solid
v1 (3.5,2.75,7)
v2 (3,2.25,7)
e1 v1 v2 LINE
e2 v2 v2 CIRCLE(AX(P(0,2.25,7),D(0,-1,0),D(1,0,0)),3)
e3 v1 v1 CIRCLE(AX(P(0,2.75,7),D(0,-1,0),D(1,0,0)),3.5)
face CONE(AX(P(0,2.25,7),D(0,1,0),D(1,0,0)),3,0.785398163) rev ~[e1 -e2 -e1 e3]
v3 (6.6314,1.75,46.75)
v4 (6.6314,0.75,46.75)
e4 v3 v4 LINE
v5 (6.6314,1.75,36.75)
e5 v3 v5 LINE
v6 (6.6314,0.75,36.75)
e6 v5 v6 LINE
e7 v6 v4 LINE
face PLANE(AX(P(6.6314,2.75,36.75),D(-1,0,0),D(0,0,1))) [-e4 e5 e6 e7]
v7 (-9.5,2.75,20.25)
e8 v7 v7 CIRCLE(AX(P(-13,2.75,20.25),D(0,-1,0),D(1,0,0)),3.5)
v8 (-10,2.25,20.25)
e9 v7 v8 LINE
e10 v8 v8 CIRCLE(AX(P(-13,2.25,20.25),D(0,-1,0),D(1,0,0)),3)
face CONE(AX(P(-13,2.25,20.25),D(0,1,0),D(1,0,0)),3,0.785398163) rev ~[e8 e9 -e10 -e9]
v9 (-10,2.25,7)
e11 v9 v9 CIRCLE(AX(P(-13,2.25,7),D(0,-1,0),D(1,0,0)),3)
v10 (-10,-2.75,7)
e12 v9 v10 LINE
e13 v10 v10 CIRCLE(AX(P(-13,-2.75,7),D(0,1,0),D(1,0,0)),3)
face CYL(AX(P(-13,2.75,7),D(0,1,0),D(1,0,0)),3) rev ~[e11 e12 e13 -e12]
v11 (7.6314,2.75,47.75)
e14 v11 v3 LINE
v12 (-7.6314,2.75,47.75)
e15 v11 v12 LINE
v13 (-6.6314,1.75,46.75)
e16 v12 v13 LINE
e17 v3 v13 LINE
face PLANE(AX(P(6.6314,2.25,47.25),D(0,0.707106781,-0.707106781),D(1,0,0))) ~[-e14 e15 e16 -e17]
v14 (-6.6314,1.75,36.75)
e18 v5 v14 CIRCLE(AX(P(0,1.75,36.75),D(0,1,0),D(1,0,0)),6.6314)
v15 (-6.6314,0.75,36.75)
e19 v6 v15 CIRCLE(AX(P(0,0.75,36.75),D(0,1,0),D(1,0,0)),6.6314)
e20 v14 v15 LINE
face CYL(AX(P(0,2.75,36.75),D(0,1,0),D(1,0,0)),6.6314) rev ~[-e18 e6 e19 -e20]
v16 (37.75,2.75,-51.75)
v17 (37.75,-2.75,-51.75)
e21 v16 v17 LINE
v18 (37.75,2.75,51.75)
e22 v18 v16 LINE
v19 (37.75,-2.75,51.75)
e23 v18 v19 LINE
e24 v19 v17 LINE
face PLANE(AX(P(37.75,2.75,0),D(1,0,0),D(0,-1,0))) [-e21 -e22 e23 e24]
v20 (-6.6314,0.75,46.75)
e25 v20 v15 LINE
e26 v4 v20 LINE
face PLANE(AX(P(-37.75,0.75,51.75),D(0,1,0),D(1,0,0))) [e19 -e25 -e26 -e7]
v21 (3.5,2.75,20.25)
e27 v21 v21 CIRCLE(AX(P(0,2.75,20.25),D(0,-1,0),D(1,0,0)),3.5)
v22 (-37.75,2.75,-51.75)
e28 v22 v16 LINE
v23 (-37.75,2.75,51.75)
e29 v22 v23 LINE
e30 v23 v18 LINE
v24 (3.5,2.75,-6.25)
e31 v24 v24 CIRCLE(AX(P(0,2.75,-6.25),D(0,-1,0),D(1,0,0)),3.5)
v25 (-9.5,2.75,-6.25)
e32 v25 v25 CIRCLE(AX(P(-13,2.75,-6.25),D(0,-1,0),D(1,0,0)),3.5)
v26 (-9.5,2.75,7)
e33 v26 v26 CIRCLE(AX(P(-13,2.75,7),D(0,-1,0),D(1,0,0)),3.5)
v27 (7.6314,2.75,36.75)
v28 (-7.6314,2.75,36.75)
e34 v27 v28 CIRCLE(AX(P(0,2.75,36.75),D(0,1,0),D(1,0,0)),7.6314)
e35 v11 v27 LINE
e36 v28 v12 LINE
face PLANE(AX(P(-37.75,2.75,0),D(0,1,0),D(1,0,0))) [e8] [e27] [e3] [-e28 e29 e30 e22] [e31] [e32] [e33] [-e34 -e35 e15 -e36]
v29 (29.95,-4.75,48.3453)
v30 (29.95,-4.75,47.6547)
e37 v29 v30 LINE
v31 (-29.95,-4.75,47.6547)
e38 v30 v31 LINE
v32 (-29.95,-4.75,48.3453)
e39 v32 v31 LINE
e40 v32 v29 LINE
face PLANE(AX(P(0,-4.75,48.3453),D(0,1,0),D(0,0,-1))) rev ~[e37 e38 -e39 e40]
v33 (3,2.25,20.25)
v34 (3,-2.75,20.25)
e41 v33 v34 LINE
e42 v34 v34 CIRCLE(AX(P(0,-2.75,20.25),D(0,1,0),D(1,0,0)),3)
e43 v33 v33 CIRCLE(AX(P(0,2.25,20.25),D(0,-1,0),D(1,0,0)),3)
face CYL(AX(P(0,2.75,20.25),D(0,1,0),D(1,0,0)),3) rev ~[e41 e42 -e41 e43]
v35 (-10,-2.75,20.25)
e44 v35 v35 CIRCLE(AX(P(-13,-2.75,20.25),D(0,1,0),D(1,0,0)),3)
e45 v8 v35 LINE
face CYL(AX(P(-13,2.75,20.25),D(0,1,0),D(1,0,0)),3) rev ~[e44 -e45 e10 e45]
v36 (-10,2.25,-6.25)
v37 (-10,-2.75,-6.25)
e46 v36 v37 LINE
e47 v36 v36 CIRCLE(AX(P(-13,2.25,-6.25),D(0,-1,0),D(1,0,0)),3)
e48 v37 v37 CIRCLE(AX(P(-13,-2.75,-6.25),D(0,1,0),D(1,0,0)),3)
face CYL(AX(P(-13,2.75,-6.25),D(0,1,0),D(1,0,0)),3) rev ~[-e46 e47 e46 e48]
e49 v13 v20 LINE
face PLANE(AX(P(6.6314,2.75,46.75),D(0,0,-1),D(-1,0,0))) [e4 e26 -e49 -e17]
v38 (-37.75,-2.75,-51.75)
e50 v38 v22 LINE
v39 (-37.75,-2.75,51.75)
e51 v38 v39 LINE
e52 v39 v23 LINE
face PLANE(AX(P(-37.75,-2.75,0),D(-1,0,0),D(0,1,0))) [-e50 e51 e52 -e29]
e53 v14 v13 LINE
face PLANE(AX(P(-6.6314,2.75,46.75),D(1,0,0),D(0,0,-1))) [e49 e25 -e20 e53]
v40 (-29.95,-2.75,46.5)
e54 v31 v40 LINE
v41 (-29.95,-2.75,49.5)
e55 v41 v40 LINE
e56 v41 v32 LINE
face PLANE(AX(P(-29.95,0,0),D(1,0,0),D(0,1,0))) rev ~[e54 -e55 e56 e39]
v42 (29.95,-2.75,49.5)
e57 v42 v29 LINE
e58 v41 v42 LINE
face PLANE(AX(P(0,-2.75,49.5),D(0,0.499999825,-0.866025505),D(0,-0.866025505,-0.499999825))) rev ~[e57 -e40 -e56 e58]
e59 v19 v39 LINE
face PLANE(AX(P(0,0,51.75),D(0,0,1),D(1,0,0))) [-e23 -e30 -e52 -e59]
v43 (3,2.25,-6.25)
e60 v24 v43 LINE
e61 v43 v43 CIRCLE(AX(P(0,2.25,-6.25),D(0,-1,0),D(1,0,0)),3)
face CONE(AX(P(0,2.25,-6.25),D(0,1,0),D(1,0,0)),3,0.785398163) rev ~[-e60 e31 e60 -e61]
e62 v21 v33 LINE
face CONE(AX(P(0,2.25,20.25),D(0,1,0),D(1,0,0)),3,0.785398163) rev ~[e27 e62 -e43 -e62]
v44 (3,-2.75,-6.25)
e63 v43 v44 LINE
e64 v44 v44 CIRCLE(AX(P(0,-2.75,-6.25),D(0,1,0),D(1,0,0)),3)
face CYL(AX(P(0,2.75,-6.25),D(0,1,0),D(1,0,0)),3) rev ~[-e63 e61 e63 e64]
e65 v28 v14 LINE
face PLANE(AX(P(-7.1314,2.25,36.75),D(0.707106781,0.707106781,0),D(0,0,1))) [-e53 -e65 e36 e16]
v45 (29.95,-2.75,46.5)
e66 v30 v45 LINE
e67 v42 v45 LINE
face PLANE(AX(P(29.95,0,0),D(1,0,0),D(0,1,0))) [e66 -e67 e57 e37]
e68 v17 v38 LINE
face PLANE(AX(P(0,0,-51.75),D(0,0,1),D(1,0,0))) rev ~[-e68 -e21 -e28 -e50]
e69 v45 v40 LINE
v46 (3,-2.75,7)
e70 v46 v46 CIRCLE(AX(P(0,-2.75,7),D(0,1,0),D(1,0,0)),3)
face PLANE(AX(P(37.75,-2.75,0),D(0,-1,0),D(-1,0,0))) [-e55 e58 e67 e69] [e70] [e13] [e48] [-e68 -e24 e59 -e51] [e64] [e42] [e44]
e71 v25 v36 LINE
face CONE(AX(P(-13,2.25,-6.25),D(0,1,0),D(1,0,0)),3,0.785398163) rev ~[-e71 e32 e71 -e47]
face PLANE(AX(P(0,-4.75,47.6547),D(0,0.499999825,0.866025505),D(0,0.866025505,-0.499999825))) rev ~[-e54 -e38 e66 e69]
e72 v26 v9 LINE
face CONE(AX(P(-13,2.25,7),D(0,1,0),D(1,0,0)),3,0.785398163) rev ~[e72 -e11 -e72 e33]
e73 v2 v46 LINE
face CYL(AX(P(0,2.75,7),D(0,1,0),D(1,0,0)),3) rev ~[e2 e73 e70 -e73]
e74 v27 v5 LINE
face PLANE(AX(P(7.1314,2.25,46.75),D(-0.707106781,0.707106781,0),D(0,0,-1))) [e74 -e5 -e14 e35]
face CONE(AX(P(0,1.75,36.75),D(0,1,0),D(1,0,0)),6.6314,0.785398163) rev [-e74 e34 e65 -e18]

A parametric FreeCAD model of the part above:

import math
import FreeCAD as App
import Part
import Sketcher

V = App.Vector
Q = App.Units.Quantity


def edges_at(feature, points):
    """Names of the edges that pass closest to the given points."""
    edges = feature.Shape.Edges
    near = lambda p: min(range(len(edges)), key=lambda i: edges[i].distToShape(Part.Vertex(*p))[0])
    return sorted({f"Edge{near(p) + 1}" for p in points})


def add_polygon(sketch, points):
    """Adds a closed chain of lines whose ends are joined by coincident constraints."""
    first, n = sketch.GeometryCount, len(points)
    for a, b in zip(points, points[1:] + points[:1]):
        sketch.addGeometry(Part.LineSegment(App.Vector(*a, 0), App.Vector(*b, 0)), False)
    for i in range(n):
        sketch.addConstraint(Sketcher.Constraint("Coincident", first + i, 2, first + (i + 1) % n, 1))

doc = App.newDocument("Part")
body = doc.addObject("PartDesign::Body", "Body")

sketch1 = doc.addObject("Sketcher::SketchObject", "Sketch")
body.addObject(sketch1)
sketch1.AttachmentSupport = (doc.XY_Plane, [""])
sketch1.MapMode = "FlatFace"
add_polygon(sketch1, [(37.75, 2.75), (-37.75, 2.75), (-37.75, -2.75), (37.75, -2.75)])
sketch1.addConstraint([
    Sketcher.Constraint("Horizontal", 0),
    Sketcher.Constraint("Vertical", 1),
    Sketcher.Constraint("Horizontal", 2),
    Sketcher.Constraint("Vertical", 3),
    Sketcher.Constraint("Symmetric", 0, 2, 2, 2, -1, 1),
    Sketcher.Constraint("DistanceX", 0, 2, 0, 1, 75.5),
    Sketcher.Constraint("DistanceY", 1, 2, 1, 1, 5.5),
])
pad1 = doc.addObject("PartDesign::Pad", "Pad")
body.addObject(pad1)
pad1.Profile = sketch1
pad1.Length = 103.5
pad1.Midplane = True

sketch2 = doc.addObject("Sketcher::SketchObject", "Sketch001")
body.addObject(sketch2)
sketch2.AttachmentSupport = (doc.YZ_Plane, [""])
sketch2.MapMode = "FlatFace"
add_polygon(sketch2, [(-2.75, 46.5), (-2.75, 49.5), (-4.75, 48.3453), (-4.75, 47.6547)])
sketch2.addConstraint([
    Sketcher.Constraint("Vertical", 0),
    Sketcher.Constraint("Vertical", 2),
    Sketcher.Constraint("Equal", 1, 3),
    Sketcher.Constraint("DistanceY", 0, 1, 0, 2, 3.0),
    Sketcher.Constraint("DistanceX", 1, 2, 0, 2, 2.0),
    Sketcher.Constraint("Angle", 1, Q("-150 deg")),
    Sketcher.Constraint("DistanceY", -1, 1, 0, 2, 49.5),
    Sketcher.Constraint("DistanceX", 0, 2, -1, 1, 2.75),
])
pad2 = doc.addObject("PartDesign::Pad", "Pad001")
body.addObject(pad2)
pad2.Profile = sketch2
pad2.Length = 59.9
pad2.Midplane = True

sketch3 = doc.addObject("Sketcher::SketchObject", "Sketch002")
body.addObject(sketch3)
sketch3.AttachmentSupport = (doc.XZ_Plane, [""])
sketch3.MapMode = "FlatFace"
sketch3.AttachmentOffset = App.Placement(V(0, 0, -2.75), App.Rotation())
sketch3.addGeometry([
    Part.LineSegment(V(6.6314, 46.75, 0), V(6.6314, 36.75, 0)),
    Part.ArcOfCircle(Part.Circle(V(0, 36.75, 0), V(0, 0, 1), 6.6314), math.radians(180), math.radians(360)),
    Part.LineSegment(V(-6.6314, 36.75, 0), V(-6.6314, 46.75, 0)),
    Part.LineSegment(V(-6.6314, 46.75, 0), V(6.6314, 46.75, 0)),
], False)
sketch3.addConstraint([
    Sketcher.Constraint("Tangent", 0, 2, 1, 2),
    Sketcher.Constraint("Tangent", 1, 1, 2, 1),
    Sketcher.Constraint("Coincident", 2, 2, 3, 1),
    Sketcher.Constraint("Coincident", 3, 2, 0, 1),
    Sketcher.Constraint("Vertical", 0),
    Sketcher.Constraint("Vertical", 2),
    Sketcher.Constraint("Horizontal", 3),
    Sketcher.Constraint("PointOnObject", 1, 3, -2),
    Sketcher.Constraint("DistanceY", 0, 2, 0, 1, 10.0),
    Sketcher.Constraint("Radius", 1, 6.6314),
    Sketcher.Constraint("DistanceY", -1, 1, 1, 3, 36.75),
])
pocket1 = doc.addObject("PartDesign::Pocket", "Pocket")
body.addObject(pocket1)
pocket1.Profile = sketch3
pocket1.Length = 2
pocket1.Reversed = True
doc.recompute()

chamfer = doc.addObject("PartDesign::Chamfer", "Chamfer")
body.addObject(chamfer)
chamfer.Base = (pocket1, edges_at(pocket1, [
    (0, 2.75, 30.119),
    (6.631, 2.75, 41.75),
    (-6.631, 2.75, 41.75),
    (0, 2.75, 46.75),
]))
chamfer.Size = 1

sketch4 = doc.addObject("Sketcher::SketchObject", "Sketch003")
body.addObject(sketch4)
sketch4.AttachmentSupport = (doc.XZ_Plane, [""])
sketch4.MapMode = "FlatFace"
sketch4.AttachmentOffset = App.Placement(V(0, 0, -2.75), App.Rotation())
sketch4.addGeometry([
    Part.Circle(V(-13, -6.25, 0), V(0, 0, 1), 3),
    Part.Circle(V(0, -6.25, 0), V(0, 0, 1), 3),
    Part.Circle(V(-13, 7, 0), V(0, 0, 1), 3),
    Part.Circle(V(0, 7, 0), V(0, 0, 1), 3),
    Part.Circle(V(-13, 20.25, 0), V(0, 0, 1), 3),
    Part.Circle(V(0, 20.25, 0), V(0, 0, 1), 3),
], False)
sketch4.addConstraint([
    Sketcher.Constraint("Equal", 0, 1),
    Sketcher.Constraint("Equal", 1, 2),
    Sketcher.Constraint("Equal", 2, 3),
    Sketcher.Constraint("Equal", 3, 4),
    Sketcher.Constraint("Equal", 4, 5),
    Sketcher.Constraint("PointOnObject", 1, 3, -2),
    Sketcher.Constraint("PointOnObject", 3, 3, -2),
    Sketcher.Constraint("PointOnObject", 5, 3, -2),
    Sketcher.Constraint("Horizontal", 0, 3, 1, 3),
    Sketcher.Constraint("Horizontal", 2, 3, 3, 3),
    Sketcher.Constraint("Horizontal", 4, 3, 5, 3),
    Sketcher.Constraint("Vertical", 0, 3, 2, 3),
    Sketcher.Constraint("Vertical", 2, 3, 4, 3),
    Sketcher.Constraint("Diameter", 0, 6.0),
    Sketcher.Constraint("DistanceY", 0, 3, 4, 3, 26.5),
    Sketcher.Constraint("DistanceY", 0, 3, 2, 3, 13.25),
    Sketcher.Constraint("DistanceX", 0, 3, -1, 1, 13.0),
    Sketcher.Constraint("DistanceY", -1, 1, 2, 3, 7.0),
])
pocket2 = doc.addObject("PartDesign::Pocket", "Pocket001")
body.addObject(pocket2)
pocket2.Profile = sketch4
pocket2.Length = 5.5
pocket2.Reversed = True
doc.recompute()

chamfer2 = doc.addObject("PartDesign::Chamfer", "Chamfer001")
body.addObject(chamfer2)
chamfer2.Base = (pocket2, edges_at(pocket2, [
    (-16, 2.75, -6.25),
    (-16, 2.75, 7),
    (-16, 2.75, 20.25),
    (-3, 2.75, 20.25),
    (-3, 2.75, 7),
    (-3, 2.75, -6.25),
]))
chamfer2.Size = 0.5

doc.recompute()
